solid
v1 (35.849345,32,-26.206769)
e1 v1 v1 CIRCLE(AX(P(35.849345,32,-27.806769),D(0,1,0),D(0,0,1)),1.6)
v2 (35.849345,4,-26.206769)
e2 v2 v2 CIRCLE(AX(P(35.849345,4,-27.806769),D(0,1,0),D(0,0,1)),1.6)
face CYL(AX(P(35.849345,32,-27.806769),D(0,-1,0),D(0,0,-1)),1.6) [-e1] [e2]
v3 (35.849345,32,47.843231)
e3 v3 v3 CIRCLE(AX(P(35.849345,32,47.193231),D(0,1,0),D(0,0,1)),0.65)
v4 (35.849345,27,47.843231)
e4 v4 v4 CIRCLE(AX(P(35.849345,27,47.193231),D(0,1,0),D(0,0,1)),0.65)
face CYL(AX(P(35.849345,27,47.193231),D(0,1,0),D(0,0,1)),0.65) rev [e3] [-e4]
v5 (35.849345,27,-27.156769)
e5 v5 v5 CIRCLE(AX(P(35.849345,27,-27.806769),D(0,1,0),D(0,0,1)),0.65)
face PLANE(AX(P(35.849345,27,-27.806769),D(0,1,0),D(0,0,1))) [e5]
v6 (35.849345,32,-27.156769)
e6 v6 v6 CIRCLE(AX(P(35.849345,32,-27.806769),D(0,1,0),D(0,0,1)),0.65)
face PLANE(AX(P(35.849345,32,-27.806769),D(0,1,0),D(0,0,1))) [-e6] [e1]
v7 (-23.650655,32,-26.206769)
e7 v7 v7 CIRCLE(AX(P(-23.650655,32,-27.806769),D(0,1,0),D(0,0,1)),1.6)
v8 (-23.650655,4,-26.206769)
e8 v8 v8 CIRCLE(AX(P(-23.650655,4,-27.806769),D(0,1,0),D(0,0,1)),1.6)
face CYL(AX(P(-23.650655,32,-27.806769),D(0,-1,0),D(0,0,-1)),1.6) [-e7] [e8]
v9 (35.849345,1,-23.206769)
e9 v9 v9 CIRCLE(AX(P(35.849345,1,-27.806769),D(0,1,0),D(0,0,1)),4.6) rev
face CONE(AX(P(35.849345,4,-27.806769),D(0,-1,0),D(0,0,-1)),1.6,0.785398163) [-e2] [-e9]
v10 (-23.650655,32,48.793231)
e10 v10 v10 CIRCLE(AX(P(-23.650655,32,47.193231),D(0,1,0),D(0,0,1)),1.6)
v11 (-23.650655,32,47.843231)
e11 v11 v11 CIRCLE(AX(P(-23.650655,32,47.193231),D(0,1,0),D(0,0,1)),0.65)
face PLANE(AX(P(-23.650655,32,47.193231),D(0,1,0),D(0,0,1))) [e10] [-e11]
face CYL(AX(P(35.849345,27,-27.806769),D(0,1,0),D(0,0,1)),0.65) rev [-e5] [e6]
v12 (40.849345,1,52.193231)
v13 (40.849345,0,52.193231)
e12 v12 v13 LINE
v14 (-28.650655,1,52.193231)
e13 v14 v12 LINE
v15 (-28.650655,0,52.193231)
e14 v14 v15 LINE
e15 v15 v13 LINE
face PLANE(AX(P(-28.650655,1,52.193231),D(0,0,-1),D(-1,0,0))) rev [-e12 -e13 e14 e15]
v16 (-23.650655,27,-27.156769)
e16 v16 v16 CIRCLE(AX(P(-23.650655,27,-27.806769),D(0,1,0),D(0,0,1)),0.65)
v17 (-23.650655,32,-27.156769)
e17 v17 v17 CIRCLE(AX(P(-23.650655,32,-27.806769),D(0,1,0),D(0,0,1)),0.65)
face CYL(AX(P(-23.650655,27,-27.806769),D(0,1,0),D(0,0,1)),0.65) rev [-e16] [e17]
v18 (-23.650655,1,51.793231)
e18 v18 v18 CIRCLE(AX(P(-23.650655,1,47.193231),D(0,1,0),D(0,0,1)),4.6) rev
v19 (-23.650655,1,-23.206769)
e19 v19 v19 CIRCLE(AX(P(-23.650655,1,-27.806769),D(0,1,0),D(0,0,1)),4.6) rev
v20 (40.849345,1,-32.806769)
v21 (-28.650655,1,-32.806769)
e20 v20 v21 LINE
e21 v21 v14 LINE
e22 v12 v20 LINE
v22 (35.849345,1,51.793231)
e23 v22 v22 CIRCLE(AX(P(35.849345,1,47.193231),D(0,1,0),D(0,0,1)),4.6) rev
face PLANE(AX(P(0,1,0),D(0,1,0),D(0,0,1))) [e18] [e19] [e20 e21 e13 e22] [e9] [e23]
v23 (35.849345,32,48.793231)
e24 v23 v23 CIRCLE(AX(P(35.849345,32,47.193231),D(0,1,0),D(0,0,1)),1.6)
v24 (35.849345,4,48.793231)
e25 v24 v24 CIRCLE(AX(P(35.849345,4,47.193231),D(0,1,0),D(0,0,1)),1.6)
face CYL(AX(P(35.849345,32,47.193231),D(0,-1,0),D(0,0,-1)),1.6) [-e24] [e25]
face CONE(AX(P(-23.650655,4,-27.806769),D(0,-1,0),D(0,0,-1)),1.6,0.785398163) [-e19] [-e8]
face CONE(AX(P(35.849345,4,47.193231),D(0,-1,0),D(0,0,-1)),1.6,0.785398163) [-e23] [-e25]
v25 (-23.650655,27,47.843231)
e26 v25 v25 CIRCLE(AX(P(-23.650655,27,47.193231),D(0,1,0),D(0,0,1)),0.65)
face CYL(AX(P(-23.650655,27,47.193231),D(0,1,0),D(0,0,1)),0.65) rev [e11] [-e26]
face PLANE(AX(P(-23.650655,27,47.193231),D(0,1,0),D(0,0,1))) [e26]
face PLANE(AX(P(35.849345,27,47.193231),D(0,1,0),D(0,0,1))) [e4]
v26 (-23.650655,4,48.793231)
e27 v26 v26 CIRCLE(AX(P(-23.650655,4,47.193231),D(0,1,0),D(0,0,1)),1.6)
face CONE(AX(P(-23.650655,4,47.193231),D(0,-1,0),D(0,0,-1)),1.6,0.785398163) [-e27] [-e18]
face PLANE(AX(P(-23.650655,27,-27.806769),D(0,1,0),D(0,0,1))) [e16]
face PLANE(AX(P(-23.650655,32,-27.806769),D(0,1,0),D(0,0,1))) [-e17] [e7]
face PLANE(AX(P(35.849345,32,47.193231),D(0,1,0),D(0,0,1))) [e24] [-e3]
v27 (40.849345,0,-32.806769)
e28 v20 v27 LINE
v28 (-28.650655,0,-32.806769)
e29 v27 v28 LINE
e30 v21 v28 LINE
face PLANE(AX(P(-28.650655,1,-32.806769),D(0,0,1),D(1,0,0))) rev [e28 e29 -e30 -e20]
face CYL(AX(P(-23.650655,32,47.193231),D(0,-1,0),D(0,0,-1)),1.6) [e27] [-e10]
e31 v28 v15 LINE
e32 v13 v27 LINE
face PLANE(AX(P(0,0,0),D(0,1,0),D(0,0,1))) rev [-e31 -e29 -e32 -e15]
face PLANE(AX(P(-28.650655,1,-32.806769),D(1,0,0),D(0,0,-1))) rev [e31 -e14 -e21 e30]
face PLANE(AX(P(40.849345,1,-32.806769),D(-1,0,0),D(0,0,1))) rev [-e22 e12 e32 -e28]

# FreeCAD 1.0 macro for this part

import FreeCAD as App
import Part
import Sketcher

V = App.Vector
Q = App.Units.Quantity


def edges_at(feature, points):
    """Names of the edges that pass closest to the given points."""
    edges = feature.Shape.Edges
    near = lambda p: min(range(len(edges)), key=lambda i: edges[i].distToShape(Part.Vertex(*p))[0])
    return sorted({f"Edge{near(p) + 1}" for p in points})


def add_polygon(sketch, points):
    """Adds a closed chain of lines whose ends are joined by coincident constraints."""
    first, n = sketch.GeometryCount, len(points)
    for a, b in zip(points, points[1:] + points[:1]):
        sketch.addGeometry(Part.LineSegment(App.Vector(*a, 0), App.Vector(*b, 0)), False)
    for i in range(n):
        sketch.addConstraint(Sketcher.Constraint("Coincident", first + i, 2, first + (i + 1) % n, 1))

doc = App.newDocument("Part")
body = doc.addObject("PartDesign::Body", "Body")

# Sketch on XZ plane
sketch1 = body.newObject("Sketcher::SketchObject", "Sketch")
sketch1.AttachmentSupport = (doc.getObject("XZ_Plane"), [""])
sketch1.MapMode = "FlatFace"
add_polygon(sketch1, [(-29, -33), (-29, 52), (41, 52), (41, -33)])  # lines 0-3
sketch1.addConstraint(Sketcher.Constraint("Vertical", 0))
sketch1.addConstraint(Sketcher.Constraint("Horizontal", 1))
sketch1.addConstraint(Sketcher.Constraint("Vertical", 2))
sketch1.addConstraint(Sketcher.Constraint("Horizontal", 3))
sketch1.addConstraint(Sketcher.Constraint("DistanceY", 0, 1, 0, 2, Q("85 mm")))
sketch1.addConstraint(Sketcher.Constraint("DistanceX", 1, 1, 1, 2, Q("69.5 mm")))
sketch1.addConstraint(Sketcher.Constraint("DistanceY", -1, 1, 0, 2, Q("52.193231 mm")))
sketch1.addConstraint(Sketcher.Constraint("DistanceX", 0, 2, -1, 1, Q("28.650655 mm")))
pad1 = body.newObject("PartDesign::Pad", "Pad")
pad1.Profile = sketch1
pad1.Length = 1
pad1.Reversed = True

# Sketch on XZ plane
sketch2 = body.newObject("Sketcher::SketchObject", "Sketch001")
sketch2.AttachmentSupport = (doc.getObject("XZ_Plane"), [""])
sketch2.MapMode = "FlatFace"
sketch2.AttachmentOffset = App.Placement(V(0, 0, -1), App.Rotation())
sketch2.addGeometry(Part.Circle(V(-23.7, -27.8, 0), V(0, 0, 1), 1.6), False)
sketch2.addGeometry(Part.Circle(V(35.8, -27.8, 0), V(0, 0, 1), 1.6), False)
sketch2.addGeometry(Part.Circle(V(35.8, 47.2, 0), V(0, 0, 1), 1.6), False)
sketch2.addGeometry(Part.Circle(V(-23.7, 47.2, 0), V(0, 0, 1), 1.6), False)
sketch2.addConstraint(Sketcher.Constraint("Equal", 0, 1))
sketch2.addConstraint(Sketcher.Constraint("Equal", 1, 2))
sketch2.addConstraint(Sketcher.Constraint("Equal", 2, 3))
sketch2.addConstraint(Sketcher.Constraint("Horizontal", 0, 3, 1, 3))
sketch2.addConstraint(Sketcher.Constraint("Horizontal", 2, 3, 3, 3))
sketch2.addConstraint(Sketcher.Constraint("Vertical", 1, 3, 2, 3))
sketch2.addConstraint(Sketcher.Constraint("Vertical", 0, 3, 3, 3))
sketch2.addConstraint(Sketcher.Constraint("Diameter", 0, Q("3.2 mm")))
sketch2.addConstraint(Sketcher.Constraint("DistanceY", 1, 3, 2, 3, Q("75 mm")))
sketch2.addConstraint(Sketcher.Constraint("DistanceX", 0, 3, 1, 3, Q("59.5 mm")))
sketch2.addConstraint(Sketcher.Constraint("DistanceY", 0, 3, -1, 1, Q("27.806769 mm")))
sketch2.addConstraint(Sketcher.Constraint("DistanceX", 0, 3, -1, 1, Q("23.650655 mm")))
pad2 = body.newObject("PartDesign::Pad", "Pad001")
pad2.Profile = sketch2
pad2.Length = 31
pad2.Reversed = True

# Sketch on XZ plane
sketch3 = body.newObject("Sketcher::SketchObject", "Sketch002")
sketch3.AttachmentSupport = (doc.getObject("XZ_Plane"), [""])
sketch3.MapMode = "FlatFace"
sketch3.AttachmentOffset = App.Placement(V(0, 0, -32), App.Rotation())
sketch3.addGeometry(Part.Circle(V(-23.7, 47.2, 0), V(0, 0, 1), 0.7), False)
sketch3.addGeometry(Part.Circle(V(35.8, 47.2, 0), V(0, 0, 1), 0.7), False)
sketch3.addGeometry(Part.Circle(V(35.8, -27.8, 0), V(0, 0, 1), 0.7), False)
sketch3.addGeometry(Part.Circle(V(-23.7, -27.8, 0), V(0, 0, 1), 0.7), False)
sketch3.addConstraint(Sketcher.Constraint("Equal", 0, 1))
sketch3.addConstraint(Sketcher.Constraint("Equal", 1, 2))
sketch3.addConstraint(Sketcher.Constraint("Equal", 2, 3))
sketch3.addConstraint(Sketcher.Constraint("Horizontal", 0, 3, 1, 3))
sketch3.addConstraint(Sketcher.Constraint("Horizontal", 2, 3, 3, 3))
sketch3.addConstraint(Sketcher.Constraint("Vertical", 1, 3, 2, 3))
sketch3.addConstraint(Sketcher.Constraint("Vertical", 0, 3, 3, 3))
sketch3.addConstraint(Sketcher.Constraint("Diameter", 0, Q("1.3 mm")))
sketch3.addConstraint(Sketcher.Constraint("DistanceY", 2, 3, 1, 3, Q("75 mm")))
sketch3.addConstraint(Sketcher.Constraint("DistanceX", 0, 3, 1, 3, Q("59.5 mm")))
sketch3.addConstraint(Sketcher.Constraint("DistanceY", -1, 1, 0, 3, Q("47.193231 mm")))
sketch3.addConstraint(Sketcher.Constraint("DistanceX", 0, 3, -1, 1, Q("23.650655 mm")))
pocket1 = body.newObject("PartDesign::Pocket", "Pocket")
pocket1.Profile = sketch3
pocket1.Length = 5
pocket1.Reversed = True
doc.recompute()

chamfer = body.newObject("PartDesign::Chamfer", "Chamfer")
chamfer.Base = (pocket1, edges_at(pocket1, [
    (-25.251, 1, -27.807),
    (34.249, 1, -27.807),
    (34.249, 1, 47.193),
    (-25.251, 1, 47.193),
]))
chamfer.Size = 3

doc.recompute()
